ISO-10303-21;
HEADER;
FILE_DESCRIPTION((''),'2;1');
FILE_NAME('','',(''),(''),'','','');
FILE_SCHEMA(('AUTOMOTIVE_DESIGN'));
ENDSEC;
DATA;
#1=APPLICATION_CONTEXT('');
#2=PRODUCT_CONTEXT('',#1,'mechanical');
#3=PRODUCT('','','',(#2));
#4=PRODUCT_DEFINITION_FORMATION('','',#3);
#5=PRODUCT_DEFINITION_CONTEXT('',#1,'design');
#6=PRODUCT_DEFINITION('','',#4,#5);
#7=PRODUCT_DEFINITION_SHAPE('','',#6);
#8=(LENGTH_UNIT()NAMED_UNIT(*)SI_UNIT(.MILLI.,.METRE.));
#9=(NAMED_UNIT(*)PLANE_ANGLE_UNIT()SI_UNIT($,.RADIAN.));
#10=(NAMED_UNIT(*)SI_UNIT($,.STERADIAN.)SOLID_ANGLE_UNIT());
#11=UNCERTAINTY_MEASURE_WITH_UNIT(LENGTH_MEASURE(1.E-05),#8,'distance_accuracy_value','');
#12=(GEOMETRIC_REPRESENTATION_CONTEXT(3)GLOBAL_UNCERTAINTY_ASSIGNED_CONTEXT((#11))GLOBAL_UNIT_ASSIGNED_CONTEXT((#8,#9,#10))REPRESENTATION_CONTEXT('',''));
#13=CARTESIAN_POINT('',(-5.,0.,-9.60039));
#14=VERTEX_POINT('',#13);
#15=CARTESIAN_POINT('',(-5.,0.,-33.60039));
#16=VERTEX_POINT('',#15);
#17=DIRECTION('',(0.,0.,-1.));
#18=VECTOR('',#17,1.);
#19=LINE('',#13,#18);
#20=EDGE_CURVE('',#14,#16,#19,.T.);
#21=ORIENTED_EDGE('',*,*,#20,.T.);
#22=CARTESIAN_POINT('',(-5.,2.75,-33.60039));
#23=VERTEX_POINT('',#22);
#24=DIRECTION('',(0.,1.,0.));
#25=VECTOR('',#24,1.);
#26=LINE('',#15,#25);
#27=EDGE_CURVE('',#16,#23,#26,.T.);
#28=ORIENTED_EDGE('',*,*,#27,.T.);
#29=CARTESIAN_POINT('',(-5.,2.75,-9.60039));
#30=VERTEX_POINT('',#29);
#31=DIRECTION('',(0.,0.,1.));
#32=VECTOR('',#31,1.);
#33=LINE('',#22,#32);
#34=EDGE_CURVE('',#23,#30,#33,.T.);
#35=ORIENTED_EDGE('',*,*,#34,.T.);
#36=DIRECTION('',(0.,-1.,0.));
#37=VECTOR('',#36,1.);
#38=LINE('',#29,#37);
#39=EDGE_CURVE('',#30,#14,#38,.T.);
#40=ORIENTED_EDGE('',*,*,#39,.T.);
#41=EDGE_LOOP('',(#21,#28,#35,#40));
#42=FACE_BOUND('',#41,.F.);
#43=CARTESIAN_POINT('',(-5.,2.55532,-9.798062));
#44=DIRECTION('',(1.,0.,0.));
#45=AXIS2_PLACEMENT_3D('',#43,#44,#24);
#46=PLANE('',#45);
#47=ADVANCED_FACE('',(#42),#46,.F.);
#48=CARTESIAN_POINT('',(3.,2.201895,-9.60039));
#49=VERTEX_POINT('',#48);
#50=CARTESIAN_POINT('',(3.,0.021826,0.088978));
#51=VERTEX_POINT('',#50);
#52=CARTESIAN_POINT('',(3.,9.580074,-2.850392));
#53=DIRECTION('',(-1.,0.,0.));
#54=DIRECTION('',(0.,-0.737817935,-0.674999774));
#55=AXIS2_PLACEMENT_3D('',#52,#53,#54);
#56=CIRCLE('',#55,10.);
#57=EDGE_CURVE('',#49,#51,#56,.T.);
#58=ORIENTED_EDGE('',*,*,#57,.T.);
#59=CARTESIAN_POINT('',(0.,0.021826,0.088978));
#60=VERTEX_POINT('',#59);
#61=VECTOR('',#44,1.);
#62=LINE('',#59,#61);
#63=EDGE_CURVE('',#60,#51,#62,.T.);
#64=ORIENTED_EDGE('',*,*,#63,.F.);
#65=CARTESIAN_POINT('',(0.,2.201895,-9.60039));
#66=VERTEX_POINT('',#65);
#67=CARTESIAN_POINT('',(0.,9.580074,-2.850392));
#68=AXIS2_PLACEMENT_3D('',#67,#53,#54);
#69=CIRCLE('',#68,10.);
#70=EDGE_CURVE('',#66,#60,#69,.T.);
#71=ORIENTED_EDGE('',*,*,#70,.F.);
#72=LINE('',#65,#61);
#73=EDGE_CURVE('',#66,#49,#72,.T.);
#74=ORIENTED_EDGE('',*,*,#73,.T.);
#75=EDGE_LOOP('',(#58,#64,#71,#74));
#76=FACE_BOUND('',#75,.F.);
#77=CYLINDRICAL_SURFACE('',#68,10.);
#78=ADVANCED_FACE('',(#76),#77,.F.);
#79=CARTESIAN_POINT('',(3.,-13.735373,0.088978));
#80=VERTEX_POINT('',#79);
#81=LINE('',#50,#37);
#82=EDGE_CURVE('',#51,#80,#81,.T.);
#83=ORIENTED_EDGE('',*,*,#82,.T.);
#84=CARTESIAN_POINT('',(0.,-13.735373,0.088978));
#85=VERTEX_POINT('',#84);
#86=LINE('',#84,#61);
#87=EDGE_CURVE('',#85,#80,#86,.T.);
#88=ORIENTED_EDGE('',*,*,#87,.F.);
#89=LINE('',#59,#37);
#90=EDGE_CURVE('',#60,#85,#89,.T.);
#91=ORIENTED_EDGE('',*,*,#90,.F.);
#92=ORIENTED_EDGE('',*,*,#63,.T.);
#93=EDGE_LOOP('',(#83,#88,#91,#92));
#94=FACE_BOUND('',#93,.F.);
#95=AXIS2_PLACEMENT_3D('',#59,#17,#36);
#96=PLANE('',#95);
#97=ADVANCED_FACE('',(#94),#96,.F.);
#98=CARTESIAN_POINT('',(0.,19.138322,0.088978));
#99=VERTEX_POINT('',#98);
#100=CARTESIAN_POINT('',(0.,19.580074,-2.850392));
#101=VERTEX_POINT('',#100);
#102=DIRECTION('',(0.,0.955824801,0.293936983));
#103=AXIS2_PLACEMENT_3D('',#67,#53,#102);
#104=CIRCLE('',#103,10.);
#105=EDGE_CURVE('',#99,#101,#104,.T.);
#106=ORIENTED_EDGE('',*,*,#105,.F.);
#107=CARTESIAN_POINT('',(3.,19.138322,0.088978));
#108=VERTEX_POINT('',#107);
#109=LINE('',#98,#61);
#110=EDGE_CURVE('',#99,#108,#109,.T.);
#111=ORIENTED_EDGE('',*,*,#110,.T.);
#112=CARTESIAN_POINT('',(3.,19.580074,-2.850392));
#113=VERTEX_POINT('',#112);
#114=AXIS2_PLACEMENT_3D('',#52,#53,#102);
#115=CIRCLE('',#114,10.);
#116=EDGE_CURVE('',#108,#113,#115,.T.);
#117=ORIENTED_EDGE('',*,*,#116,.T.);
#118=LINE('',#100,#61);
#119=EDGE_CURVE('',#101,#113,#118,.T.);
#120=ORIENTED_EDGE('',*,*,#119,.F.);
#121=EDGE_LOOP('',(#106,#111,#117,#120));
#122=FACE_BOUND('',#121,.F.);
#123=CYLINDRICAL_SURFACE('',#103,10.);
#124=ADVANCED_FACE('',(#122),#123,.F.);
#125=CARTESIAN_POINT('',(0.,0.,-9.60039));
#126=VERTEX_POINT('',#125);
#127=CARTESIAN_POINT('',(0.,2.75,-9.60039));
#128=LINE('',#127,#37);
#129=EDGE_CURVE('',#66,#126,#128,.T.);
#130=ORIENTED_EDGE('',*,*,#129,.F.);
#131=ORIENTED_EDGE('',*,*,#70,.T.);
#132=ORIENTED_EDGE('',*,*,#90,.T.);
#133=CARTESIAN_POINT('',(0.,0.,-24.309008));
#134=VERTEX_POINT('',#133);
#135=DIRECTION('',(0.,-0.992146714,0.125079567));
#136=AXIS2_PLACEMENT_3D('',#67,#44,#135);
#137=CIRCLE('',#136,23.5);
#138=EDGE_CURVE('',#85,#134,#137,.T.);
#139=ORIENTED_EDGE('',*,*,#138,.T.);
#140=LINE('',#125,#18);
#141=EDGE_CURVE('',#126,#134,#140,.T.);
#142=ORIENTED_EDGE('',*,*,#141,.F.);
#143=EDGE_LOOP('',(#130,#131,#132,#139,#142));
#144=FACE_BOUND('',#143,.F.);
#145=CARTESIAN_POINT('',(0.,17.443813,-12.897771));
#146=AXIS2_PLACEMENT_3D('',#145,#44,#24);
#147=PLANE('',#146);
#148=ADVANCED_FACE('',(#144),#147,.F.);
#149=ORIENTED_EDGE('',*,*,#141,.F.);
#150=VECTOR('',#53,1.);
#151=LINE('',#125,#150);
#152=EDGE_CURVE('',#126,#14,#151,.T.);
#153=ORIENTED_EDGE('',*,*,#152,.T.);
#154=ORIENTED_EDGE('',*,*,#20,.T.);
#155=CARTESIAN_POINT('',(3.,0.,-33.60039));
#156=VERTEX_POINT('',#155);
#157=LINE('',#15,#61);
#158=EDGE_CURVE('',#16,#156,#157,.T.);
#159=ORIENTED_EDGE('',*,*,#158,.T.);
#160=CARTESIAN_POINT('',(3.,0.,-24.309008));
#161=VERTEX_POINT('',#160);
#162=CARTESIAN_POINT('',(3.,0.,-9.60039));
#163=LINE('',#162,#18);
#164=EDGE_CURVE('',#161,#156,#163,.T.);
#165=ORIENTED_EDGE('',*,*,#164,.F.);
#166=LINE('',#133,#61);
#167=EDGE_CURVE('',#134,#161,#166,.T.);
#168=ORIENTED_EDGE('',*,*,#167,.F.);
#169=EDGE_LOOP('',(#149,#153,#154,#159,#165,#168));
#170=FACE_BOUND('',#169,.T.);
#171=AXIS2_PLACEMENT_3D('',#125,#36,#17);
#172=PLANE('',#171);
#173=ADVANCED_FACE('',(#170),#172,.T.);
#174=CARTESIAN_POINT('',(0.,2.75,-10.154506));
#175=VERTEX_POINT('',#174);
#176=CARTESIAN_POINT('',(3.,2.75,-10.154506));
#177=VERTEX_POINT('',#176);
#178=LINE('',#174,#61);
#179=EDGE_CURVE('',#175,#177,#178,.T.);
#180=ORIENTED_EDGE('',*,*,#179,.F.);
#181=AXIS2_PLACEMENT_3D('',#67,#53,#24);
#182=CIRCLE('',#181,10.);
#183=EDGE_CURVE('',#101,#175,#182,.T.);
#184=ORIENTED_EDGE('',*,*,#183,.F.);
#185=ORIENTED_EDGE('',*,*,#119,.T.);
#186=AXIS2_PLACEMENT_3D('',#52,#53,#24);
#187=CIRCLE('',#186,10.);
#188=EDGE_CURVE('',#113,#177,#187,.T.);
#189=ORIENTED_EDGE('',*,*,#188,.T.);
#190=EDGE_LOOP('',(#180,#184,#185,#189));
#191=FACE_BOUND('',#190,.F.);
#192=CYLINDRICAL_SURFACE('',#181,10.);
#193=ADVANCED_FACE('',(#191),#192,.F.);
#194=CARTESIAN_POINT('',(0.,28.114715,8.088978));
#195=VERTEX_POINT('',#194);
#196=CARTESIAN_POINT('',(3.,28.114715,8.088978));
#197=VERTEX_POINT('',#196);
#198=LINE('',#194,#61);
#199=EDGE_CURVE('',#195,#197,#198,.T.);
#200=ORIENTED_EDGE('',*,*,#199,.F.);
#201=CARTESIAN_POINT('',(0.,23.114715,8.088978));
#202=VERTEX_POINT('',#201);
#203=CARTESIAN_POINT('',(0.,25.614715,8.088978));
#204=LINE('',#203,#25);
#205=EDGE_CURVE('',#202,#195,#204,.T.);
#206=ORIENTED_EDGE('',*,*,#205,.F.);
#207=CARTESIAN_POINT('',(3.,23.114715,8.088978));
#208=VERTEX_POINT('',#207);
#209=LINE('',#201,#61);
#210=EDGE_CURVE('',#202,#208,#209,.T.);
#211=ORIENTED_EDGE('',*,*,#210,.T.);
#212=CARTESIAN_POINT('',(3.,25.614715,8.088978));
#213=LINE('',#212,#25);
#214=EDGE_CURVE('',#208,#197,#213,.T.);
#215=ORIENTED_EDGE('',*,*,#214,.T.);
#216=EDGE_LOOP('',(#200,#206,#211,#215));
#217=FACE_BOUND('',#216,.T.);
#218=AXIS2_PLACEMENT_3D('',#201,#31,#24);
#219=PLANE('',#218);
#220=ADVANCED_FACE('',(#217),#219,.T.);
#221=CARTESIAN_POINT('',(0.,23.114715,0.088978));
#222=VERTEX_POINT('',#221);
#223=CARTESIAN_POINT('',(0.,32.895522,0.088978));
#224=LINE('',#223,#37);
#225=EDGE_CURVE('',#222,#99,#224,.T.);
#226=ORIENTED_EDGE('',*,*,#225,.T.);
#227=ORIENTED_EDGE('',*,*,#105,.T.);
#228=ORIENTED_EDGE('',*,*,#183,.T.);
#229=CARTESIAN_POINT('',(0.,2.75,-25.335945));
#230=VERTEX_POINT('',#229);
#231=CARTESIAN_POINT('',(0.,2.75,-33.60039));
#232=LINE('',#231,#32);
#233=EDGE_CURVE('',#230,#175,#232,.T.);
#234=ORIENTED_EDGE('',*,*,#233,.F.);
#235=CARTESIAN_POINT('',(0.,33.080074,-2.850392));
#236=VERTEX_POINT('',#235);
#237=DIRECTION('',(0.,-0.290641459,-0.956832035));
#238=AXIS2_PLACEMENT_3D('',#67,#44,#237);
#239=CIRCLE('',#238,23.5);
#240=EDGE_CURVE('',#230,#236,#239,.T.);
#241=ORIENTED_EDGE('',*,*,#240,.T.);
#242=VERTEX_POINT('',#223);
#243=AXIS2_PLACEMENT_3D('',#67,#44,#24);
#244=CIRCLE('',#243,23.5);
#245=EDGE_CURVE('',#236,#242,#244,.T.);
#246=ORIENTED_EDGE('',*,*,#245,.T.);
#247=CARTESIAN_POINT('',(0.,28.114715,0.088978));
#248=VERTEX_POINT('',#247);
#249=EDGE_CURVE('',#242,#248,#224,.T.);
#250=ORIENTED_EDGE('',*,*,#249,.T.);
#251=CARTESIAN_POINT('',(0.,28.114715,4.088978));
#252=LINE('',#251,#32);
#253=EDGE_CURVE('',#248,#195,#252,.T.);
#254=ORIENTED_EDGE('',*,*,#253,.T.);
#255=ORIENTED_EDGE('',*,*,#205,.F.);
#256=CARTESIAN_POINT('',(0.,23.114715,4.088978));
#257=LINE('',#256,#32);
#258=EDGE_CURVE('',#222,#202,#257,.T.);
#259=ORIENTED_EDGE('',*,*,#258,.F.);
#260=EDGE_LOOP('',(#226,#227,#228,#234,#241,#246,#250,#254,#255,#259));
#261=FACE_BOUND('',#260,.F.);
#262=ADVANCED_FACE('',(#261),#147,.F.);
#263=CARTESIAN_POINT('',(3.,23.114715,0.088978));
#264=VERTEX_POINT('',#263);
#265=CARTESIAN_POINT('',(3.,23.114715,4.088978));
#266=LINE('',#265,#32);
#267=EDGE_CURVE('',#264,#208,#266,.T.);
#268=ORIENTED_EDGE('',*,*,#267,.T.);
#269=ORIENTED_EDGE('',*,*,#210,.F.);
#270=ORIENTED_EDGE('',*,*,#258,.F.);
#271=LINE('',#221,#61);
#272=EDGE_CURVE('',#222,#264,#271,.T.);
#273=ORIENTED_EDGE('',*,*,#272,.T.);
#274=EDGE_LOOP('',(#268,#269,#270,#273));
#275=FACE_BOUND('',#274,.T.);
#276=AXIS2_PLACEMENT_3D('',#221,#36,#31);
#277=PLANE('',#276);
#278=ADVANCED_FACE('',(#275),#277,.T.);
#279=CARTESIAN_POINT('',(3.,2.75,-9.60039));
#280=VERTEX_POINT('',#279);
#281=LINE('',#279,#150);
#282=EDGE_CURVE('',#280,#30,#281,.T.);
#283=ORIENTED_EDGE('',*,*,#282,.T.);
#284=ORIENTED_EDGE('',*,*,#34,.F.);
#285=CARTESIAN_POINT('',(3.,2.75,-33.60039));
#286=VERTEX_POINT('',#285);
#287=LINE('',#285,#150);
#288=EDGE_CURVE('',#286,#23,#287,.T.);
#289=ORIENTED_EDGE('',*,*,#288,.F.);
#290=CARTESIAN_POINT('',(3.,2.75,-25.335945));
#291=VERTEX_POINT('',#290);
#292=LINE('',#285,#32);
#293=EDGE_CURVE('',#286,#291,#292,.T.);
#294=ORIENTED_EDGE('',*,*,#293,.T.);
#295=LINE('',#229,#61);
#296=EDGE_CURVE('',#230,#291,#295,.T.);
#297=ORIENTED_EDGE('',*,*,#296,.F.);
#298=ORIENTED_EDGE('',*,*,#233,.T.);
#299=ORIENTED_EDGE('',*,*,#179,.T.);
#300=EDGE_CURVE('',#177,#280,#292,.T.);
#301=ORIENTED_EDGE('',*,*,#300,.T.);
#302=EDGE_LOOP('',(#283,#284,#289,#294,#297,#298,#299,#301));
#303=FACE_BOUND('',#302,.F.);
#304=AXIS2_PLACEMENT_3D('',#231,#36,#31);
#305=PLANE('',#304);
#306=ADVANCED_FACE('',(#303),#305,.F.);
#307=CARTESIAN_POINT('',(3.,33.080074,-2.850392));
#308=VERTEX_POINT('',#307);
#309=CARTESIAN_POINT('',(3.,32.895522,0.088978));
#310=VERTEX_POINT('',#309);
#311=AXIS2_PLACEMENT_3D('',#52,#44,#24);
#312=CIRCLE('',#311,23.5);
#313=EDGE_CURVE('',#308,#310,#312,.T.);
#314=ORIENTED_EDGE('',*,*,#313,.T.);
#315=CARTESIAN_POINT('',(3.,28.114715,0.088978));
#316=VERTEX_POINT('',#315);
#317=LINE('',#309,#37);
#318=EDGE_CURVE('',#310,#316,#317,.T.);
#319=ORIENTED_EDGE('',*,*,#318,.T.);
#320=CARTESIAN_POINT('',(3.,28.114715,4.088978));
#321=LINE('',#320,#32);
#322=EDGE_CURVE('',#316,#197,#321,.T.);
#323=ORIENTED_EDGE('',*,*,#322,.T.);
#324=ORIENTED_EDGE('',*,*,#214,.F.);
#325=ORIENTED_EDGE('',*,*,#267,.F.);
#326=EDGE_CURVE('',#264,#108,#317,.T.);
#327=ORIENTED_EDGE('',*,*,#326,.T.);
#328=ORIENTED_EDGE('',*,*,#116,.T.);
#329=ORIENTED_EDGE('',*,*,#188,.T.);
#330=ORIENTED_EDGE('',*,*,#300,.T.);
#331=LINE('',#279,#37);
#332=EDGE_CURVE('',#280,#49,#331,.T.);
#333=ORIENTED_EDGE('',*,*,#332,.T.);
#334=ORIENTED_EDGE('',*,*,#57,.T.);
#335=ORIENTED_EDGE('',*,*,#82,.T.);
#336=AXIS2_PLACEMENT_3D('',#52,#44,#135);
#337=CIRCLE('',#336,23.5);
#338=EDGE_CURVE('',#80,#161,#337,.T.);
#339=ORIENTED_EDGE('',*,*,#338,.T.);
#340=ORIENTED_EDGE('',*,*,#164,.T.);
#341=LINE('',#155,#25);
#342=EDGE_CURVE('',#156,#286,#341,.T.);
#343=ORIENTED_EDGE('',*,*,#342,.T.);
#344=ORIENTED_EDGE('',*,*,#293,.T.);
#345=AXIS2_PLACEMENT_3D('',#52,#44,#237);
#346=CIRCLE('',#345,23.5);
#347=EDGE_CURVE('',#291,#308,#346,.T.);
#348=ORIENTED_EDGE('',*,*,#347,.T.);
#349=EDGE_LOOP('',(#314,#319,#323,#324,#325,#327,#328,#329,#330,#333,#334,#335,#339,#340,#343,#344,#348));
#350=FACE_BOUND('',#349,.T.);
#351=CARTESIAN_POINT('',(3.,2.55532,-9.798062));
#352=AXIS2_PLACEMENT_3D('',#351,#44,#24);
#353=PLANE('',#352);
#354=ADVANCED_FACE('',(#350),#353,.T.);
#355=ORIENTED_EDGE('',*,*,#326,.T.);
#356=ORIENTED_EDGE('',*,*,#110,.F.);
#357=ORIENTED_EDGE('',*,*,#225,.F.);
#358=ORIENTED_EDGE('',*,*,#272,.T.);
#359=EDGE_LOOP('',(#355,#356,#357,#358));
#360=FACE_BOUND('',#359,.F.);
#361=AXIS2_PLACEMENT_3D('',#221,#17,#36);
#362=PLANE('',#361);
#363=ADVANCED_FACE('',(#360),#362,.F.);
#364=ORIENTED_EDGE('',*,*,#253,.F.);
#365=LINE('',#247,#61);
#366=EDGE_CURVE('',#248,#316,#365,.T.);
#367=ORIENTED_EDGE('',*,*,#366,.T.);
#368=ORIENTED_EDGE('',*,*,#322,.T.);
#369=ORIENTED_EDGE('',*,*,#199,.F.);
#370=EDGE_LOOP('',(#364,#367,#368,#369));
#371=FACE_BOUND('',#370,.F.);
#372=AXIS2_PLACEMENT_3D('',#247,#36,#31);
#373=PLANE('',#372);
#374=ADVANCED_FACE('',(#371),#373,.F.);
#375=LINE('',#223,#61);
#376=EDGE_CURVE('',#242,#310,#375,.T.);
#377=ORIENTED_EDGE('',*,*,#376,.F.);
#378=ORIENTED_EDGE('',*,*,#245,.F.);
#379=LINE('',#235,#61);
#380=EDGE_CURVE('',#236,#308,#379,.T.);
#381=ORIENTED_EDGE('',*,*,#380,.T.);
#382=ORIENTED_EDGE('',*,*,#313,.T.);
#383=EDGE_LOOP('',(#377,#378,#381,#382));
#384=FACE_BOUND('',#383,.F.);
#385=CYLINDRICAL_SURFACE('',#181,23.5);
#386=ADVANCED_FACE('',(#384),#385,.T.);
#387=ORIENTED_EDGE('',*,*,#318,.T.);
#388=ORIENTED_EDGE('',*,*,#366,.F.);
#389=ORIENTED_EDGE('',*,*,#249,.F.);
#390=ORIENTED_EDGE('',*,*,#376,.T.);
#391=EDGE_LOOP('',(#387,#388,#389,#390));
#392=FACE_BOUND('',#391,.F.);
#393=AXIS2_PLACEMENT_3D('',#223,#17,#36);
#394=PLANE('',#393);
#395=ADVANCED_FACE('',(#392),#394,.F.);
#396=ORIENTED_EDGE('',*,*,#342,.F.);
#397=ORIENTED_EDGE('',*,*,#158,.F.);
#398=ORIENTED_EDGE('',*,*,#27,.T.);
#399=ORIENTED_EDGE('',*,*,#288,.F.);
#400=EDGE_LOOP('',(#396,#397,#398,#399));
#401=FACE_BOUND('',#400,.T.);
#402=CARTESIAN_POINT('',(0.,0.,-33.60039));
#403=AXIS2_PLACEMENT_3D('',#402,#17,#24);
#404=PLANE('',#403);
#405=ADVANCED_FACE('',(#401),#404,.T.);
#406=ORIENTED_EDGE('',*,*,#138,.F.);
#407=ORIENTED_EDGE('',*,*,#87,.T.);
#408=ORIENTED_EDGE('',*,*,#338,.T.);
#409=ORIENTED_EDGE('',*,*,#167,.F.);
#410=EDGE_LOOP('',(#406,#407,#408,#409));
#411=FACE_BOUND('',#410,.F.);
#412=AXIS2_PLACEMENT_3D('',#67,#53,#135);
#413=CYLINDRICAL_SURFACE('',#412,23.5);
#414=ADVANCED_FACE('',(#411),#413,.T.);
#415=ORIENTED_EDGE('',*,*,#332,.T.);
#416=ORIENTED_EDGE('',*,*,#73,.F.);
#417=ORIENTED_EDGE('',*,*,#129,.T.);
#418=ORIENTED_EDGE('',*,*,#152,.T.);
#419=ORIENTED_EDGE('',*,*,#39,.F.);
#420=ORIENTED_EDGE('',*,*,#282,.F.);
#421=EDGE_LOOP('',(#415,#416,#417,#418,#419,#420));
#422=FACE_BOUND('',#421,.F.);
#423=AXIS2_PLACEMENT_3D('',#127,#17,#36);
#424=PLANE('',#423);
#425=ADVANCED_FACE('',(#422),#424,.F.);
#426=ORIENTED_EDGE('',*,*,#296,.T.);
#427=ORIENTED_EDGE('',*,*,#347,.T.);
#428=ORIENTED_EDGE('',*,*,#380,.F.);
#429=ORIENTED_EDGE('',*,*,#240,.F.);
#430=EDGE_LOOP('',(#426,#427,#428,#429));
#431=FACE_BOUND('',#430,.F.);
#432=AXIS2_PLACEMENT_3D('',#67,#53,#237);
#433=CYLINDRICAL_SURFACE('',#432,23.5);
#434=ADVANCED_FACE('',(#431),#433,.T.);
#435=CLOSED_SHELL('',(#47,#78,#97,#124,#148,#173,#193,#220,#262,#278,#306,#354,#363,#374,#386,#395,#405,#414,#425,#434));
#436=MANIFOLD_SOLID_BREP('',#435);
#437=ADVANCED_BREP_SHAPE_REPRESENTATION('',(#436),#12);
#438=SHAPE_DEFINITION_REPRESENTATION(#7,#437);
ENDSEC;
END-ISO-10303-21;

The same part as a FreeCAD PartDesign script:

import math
import FreeCAD as App
import Part
import Sketcher

V = App.Vector


def add_polygon(sketch, points):
    """Adds a closed chain of lines whose ends are joined by coincident constraints."""
    first, n = sketch.GeometryCount, len(points)
    for a, b in zip(points, points[1:] + points[:1]):
        sketch.addGeometry(Part.LineSegment(App.Vector(*a, 0), App.Vector(*b, 0)), False)
    for i in range(n):
        sketch.addConstraint(Sketcher.Constraint("Coincident", first + i, 2, first + (i + 1) % n, 1))

doc = App.newDocument("Part")
body = doc.addObject("PartDesign::Body", "Body")

# Sketch on YZ plane
sketch1 = doc.addObject("Sketcher::SketchObject", "Sketch")
body.addObject(sketch1)
sketch1.AttachmentSupport = (doc.YZ_Plane, [""])
sketch1.MapMode = "FlatFace"
sketch1.addGeometry(Part.ArcOfCircle(Part.Circle(V(9.580074, -2.850392, 0), V(0, 0, 1), 10), math.radians(0), math.radians(17.093805)), False)
sketch1.addGeometry(Part.ArcOfCircle(Part.Circle(V(9.580074, -2.850392, 0), V(0, 0, 1), 10), math.radians(-133.079103), math.radians(0)), False)
sketch1.addGeometry(Part.ArcOfCircle(Part.Circle(V(9.580074, -2.850392, 0), V(0, 0, 1), 10), math.radians(-137.545867), math.radians(-133.079103)), False)
sketch1.addGeometry(Part.ArcOfCircle(Part.Circle(V(9.580074, -2.850392, 0), V(0, 0, 1), 10), math.radians(162.906195), math.radians(222.454133)), False)
sketch1.addGeometry(Part.LineSegment(V(0.021826, 0.088978, 0), V(-13.735373, 0.088978, 0)), False)
sketch1.addGeometry(Part.ArcOfCircle(Part.Circle(V(9.580074, -2.850392, 0), V(0, 0, 1), 23.5), math.radians(172.814649), math.radians(245.941904)), False)
sketch1.addGeometry(Part.ArcOfCircle(Part.Circle(V(9.580074, -2.850392, 0), V(0, 0, 1), 23.5), math.radians(-114.058096), math.radians(-106.896363)), False)
sketch1.addGeometry(Part.ArcOfCircle(Part.Circle(V(9.580074, -2.850392, 0), V(0, 0, 1), 23.5), math.radians(-106.896363), math.radians(0)), False)
sketch1.addGeometry(Part.ArcOfCircle(Part.Circle(V(9.580074, -2.850392, 0), V(0, 0, 1), 23.5), math.radians(0), math.radians(7.185351)), False)
sketch1.addGeometry(Part.LineSegment(V(32.895522, 0.088978, 0), V(28.114715, 0.088978, 0)), False)
sketch1.addGeometry(Part.LineSegment(V(28.114715, 0.088978, 0), V(28.114715, 8.088978, 0)), False)
sketch1.addGeometry(Part.LineSegment(V(28.114715, 8.088978, 0), V(23.114715, 8.088978, 0)), False)
sketch1.addGeometry(Part.LineSegment(V(23.114715, 8.088978, 0), V(23.114715, 0.088978, 0)), False)
sketch1.addGeometry(Part.LineSegment(V(23.114715, 0.088978, 0), V(19.138322, 0.088978, 0)), False)
sketch1.addConstraint(Sketcher.Constraint("Tangent", 0, 1, 1, 2))
sketch1.addConstraint(Sketcher.Constraint("Tangent", 1, 1, 2, 2))
sketch1.addConstraint(Sketcher.Constraint("Tangent", 2, 1, 3, 2))
sketch1.addConstraint(Sketcher.Constraint("Coincident", 3, 1, 4, 1))
sketch1.addConstraint(Sketcher.Constraint("Coincident", 4, 2, 5, 1))
sketch1.addConstraint(Sketcher.Constraint("Tangent", 5, 2, 6, 1))
sketch1.addConstraint(Sketcher.Constraint("Tangent", 6, 2, 7, 1))
sketch1.addConstraint(Sketcher.Constraint("Tangent", 7, 2, 8, 1))
sketch1.addConstraint(Sketcher.Constraint("Coincident", 8, 2, 9, 1))
sketch1.addConstraint(Sketcher.Constraint("Coincident", 9, 2, 10, 1))
sketch1.addConstraint(Sketcher.Constraint("Coincident", 10, 2, 11, 1))
sketch1.addConstraint(Sketcher.Constraint("Coincident", 11, 2, 12, 1))
sketch1.addConstraint(Sketcher.Constraint("Coincident", 12, 2, 13, 1))
sketch1.addConstraint(Sketcher.Constraint("Coincident", 13, 2, 0, 2))
sketch1.addConstraint(Sketcher.Constraint("Horizontal", 4))
sketch1.addConstraint(Sketcher.Constraint("Horizontal", 9))
sketch1.addConstraint(Sketcher.Constraint("Vertical", 10))
sketch1.addConstraint(Sketcher.Constraint("Horizontal", 11))
sketch1.addConstraint(Sketcher.Constraint("Vertical", 12))
sketch1.addConstraint(Sketcher.Constraint("Horizontal", 13))
sketch1.addConstraint(Sketcher.Constraint("Coincident", 2, 3, 0, 3))
sketch1.addConstraint(Sketcher.Constraint("Coincident", 5, 3, 0, 3))
sketch1.addConstraint(Sketcher.Constraint("Coincident", 7, 3, 0, 3))
sketch1.addConstraint(Sketcher.Constraint("Equal", 2, 3))
sketch1.addConstraint(Sketcher.Constraint("Equal", 7, 8))
sketch1.addConstraint(Sketcher.Constraint("PointOnObject", 5, 2, -2))
sketch1.addConstraint(Sketcher.Constraint("Horizontal", 8, 3, 0, 1))
sketch1.addConstraint(Sketcher.Constraint("Horizontal", 0, 1, 7, 2))
sketch1.addConstraint(Sketcher.Constraint("Horizontal", 4, 2, 8, 2))
sketch1.addConstraint(Sketcher.Constraint("Horizontal", 9, 2, 12, 2))
sketch1.addConstraint(Sketcher.Constraint("Vertical", 1, 1, 6, 2))
sketch1.addConstraint(Sketcher.Constraint("Radius", 0, 10.0))
sketch1.addConstraint(Sketcher.Constraint("Radius", 5, 23.5))
sketch1.addConstraint(Sketcher.Constraint("DistanceX", 11, 2, 11, 1, 5.0))
sketch1.addConstraint(Sketcher.Constraint("DistanceY", 10, 1, 10, 2, 8.0))
sketch1.addConstraint(Sketcher.Constraint("DistanceX", -1, 1, 1, 1, 2.75))
sketch1.addConstraint(Sketcher.Constraint("DistanceX", 4, 2, 4, 1, 13.7572))
sketch1.addConstraint(Sketcher.Constraint("DistanceY", 5, 2, 1, 1, 14.154501))
sketch1.addConstraint(Sketcher.Constraint("DistanceX", 9, 2, 9, 1, 4.780807))
sketch1.addConstraint(Sketcher.Constraint("DistanceY", 2, 1, -1, 1, 9.60039))
sketch1.addConstraint(Sketcher.Constraint("DistanceX", 2, 1, 0, 3, 7.378179))
pad1 = doc.addObject("PartDesign::Pad", "Pad")
body.addObject(pad1)
pad1.Profile = sketch1
pad1.Length = 3

# Sketch on YZ plane
sketch2 = doc.addObject("Sketcher::SketchObject", "Sketch001")
body.addObject(sketch2)
sketch2.AttachmentSupport = (doc.YZ_Plane, [""])
sketch2.MapMode = "FlatFace"
add_polygon(sketch2, [(2.75, -9.60039), (0, -9.60039), (0, -33.60039), (2.75, -33.60039)])  # lines 0-3
sketch2.addConstraint(Sketcher.Constraint("Horizontal", 0))
sketch2.addConstraint(Sketcher.Constraint("Vertical", 1))
sketch2.addConstraint(Sketcher.Constraint("Horizontal", 2))
sketch2.addConstraint(Sketcher.Constraint("Vertical", 3))
sketch2.addConstraint(Sketcher.Constraint("PointOnObject", 0, 2, -2))
sketch2.addConstraint(Sketcher.Constraint("DistanceY", 1, 2, 1, 1, 24.0))
sketch2.addConstraint(Sketcher.Constraint("DistanceX", 0, 2, 0, 1, 2.75))
sketch2.addConstraint(Sketcher.Constraint("DistanceY", 0, 2, -1, 1, 9.60039))
pad2 = doc.addObject("PartDesign::Pad", "Pad001")
body.addObject(pad2)
pad2.Profile = sketch2
pad2.Type = "TwoLengths"
pad2.Length = 5
pad2.Length2 = 3
pad2.Reversed = True

doc.recompute()
